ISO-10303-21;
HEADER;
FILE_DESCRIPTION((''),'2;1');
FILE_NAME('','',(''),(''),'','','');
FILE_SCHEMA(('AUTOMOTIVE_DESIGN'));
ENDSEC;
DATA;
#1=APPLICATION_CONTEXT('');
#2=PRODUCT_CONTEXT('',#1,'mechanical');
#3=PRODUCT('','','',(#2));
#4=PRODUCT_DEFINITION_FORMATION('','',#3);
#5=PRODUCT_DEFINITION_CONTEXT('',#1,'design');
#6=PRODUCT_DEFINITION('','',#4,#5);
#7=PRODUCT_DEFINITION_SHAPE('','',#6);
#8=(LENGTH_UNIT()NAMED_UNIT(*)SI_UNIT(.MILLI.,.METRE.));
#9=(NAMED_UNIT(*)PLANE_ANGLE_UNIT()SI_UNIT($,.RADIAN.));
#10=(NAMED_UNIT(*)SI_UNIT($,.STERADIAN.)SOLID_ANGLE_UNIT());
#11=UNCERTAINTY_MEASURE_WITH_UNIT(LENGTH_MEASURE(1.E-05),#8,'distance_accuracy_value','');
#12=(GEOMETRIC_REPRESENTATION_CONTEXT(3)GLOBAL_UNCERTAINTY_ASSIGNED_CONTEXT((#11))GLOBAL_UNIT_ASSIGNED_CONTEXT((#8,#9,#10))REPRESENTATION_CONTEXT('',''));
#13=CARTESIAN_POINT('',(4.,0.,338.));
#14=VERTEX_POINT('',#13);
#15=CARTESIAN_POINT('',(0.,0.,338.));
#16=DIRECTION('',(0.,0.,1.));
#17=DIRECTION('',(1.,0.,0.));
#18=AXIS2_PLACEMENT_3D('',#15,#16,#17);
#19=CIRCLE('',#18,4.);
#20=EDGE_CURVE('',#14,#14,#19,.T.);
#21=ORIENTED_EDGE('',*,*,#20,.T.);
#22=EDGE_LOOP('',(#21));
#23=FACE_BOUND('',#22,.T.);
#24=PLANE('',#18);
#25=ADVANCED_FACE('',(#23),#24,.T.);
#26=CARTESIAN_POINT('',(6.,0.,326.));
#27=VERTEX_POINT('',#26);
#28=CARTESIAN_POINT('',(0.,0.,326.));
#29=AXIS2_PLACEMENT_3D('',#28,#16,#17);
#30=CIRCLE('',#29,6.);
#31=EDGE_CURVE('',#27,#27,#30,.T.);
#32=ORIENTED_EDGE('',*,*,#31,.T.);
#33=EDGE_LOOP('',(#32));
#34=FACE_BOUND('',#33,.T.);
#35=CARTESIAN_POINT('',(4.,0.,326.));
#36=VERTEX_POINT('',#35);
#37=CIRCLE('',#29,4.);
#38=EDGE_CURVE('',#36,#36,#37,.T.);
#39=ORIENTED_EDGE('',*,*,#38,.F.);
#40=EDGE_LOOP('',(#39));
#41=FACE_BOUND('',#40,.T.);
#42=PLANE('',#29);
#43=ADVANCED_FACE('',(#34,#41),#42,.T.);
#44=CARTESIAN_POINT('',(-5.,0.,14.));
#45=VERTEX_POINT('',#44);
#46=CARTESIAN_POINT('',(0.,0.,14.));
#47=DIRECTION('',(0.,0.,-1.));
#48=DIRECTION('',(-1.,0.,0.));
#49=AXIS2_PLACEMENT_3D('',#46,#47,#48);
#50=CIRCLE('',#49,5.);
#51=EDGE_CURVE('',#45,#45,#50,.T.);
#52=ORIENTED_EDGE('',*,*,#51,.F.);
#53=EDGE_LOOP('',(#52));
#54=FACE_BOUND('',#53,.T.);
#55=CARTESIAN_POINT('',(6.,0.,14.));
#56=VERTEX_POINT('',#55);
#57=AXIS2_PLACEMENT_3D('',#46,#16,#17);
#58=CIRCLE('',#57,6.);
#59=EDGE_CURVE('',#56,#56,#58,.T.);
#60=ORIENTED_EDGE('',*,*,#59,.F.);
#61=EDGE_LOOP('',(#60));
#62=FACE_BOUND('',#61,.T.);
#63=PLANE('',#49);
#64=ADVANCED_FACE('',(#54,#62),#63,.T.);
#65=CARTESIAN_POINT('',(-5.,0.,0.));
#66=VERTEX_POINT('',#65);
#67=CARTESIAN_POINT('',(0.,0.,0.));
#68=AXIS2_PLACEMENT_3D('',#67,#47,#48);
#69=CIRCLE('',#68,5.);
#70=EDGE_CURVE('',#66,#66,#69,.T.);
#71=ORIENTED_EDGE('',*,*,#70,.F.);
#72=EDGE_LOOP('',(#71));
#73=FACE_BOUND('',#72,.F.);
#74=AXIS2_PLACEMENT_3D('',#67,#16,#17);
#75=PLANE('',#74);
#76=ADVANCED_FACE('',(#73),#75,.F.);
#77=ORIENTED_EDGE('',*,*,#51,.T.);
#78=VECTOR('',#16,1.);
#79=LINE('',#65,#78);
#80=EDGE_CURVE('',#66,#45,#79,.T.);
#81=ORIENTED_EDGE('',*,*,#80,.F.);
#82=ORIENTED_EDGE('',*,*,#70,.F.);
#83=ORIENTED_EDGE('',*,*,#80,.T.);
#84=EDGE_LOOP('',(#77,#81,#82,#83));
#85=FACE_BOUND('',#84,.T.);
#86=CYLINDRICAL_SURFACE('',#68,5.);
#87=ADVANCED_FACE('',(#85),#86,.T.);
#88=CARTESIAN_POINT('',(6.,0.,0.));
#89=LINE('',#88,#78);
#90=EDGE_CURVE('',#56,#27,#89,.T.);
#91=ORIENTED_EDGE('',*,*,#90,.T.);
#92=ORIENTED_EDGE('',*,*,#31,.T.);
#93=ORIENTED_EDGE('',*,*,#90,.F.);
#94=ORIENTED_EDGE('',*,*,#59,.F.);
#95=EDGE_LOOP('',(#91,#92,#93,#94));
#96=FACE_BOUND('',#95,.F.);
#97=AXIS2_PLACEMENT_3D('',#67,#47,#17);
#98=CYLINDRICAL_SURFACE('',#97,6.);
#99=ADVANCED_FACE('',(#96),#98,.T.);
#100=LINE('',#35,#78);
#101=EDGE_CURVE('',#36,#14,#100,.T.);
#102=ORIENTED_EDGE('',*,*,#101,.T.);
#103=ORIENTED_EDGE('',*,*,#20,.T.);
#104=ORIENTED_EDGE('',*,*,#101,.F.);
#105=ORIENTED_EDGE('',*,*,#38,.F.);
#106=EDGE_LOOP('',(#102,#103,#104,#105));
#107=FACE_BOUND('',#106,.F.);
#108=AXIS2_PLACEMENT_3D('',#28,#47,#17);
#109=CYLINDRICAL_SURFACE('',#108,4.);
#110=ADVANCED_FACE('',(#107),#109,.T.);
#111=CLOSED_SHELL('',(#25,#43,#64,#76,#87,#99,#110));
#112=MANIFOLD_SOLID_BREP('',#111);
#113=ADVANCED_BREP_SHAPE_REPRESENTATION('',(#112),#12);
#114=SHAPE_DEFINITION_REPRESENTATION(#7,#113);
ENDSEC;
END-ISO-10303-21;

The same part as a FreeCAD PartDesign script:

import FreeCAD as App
import Part
import Sketcher

doc = App.newDocument("Part")
body = doc.addObject("PartDesign::Body", "Body")

sketch1 = body.newObject("Sketcher::SketchObject", "Sketch")
sketch1.AttachmentSupport = (doc.getObject("XY_Plane"), [""])
sketch1.MapMode = "FlatFace"
sketch1.addGeometry(Part.Circle(App.Vector(0, 0, 0), App.Vector(0, 0, 1), 6), False)
sketch1.addConstraint([
    Sketcher.Constraint("Coincident", 0, 3, -1, 1),
    Sketcher.Constraint("Diameter", 0, 12.0),
])
pad1 = body.newObject("PartDesign::Pad", "Pad")
pad1.Profile = sketch1
pad1.Length = 326

sketch2 = body.newObject("Sketcher::SketchObject", "Sketch001")
sketch2.AttachmentSupport = (doc.getObject("XY_Plane"), [""])
sketch2.MapMode = "FlatFace"
sketch2.AttachmentOffset = App.Placement(App.Vector(0, 0, 326), App.Rotation())
sketch2.addGeometry(Part.Circle(App.Vector(0, 0, 0), App.Vector(0, 0, 1), 4), False)
sketch2.addConstraint([
    Sketcher.Constraint("Coincident", 0, 3, -1, 1),
    Sketcher.Constraint("Diameter", 0, 8.0),
])
pad2 = body.newObject("PartDesign::Pad", "Pad001")
pad2.Profile = sketch2
pad2.Length = 12

sketch3 = body.newObject("Sketcher::SketchObject", "Sketch002")
sketch3.AttachmentSupport = (doc.getObject("XY_Plane"), [""])
sketch3.MapMode = "FlatFace"
sketch3.addGeometry([
    Part.Circle(App.Vector(0, 0, 0), App.Vector(0, 0, 1), 6),
    Part.Circle(App.Vector(0, 0, 0), App.Vector(0, 0, 1), 5),
], False)
sketch3.addConstraint([
    Sketcher.Constraint("Coincident", 0, 3, -1, 1),
    Sketcher.Constraint("Coincident", 1, 3, -1, 1),
    Sketcher.Constraint("Diameter", 0, 12.0),
    Sketcher.Constraint("Diameter", 1, 10.0),
])
pocket1 = body.newObject("PartDesign::Pocket", "Pocket")
pocket1.Profile = sketch3
pocket1.Length = 14
pocket1.Reversed = True

doc.recompute()
